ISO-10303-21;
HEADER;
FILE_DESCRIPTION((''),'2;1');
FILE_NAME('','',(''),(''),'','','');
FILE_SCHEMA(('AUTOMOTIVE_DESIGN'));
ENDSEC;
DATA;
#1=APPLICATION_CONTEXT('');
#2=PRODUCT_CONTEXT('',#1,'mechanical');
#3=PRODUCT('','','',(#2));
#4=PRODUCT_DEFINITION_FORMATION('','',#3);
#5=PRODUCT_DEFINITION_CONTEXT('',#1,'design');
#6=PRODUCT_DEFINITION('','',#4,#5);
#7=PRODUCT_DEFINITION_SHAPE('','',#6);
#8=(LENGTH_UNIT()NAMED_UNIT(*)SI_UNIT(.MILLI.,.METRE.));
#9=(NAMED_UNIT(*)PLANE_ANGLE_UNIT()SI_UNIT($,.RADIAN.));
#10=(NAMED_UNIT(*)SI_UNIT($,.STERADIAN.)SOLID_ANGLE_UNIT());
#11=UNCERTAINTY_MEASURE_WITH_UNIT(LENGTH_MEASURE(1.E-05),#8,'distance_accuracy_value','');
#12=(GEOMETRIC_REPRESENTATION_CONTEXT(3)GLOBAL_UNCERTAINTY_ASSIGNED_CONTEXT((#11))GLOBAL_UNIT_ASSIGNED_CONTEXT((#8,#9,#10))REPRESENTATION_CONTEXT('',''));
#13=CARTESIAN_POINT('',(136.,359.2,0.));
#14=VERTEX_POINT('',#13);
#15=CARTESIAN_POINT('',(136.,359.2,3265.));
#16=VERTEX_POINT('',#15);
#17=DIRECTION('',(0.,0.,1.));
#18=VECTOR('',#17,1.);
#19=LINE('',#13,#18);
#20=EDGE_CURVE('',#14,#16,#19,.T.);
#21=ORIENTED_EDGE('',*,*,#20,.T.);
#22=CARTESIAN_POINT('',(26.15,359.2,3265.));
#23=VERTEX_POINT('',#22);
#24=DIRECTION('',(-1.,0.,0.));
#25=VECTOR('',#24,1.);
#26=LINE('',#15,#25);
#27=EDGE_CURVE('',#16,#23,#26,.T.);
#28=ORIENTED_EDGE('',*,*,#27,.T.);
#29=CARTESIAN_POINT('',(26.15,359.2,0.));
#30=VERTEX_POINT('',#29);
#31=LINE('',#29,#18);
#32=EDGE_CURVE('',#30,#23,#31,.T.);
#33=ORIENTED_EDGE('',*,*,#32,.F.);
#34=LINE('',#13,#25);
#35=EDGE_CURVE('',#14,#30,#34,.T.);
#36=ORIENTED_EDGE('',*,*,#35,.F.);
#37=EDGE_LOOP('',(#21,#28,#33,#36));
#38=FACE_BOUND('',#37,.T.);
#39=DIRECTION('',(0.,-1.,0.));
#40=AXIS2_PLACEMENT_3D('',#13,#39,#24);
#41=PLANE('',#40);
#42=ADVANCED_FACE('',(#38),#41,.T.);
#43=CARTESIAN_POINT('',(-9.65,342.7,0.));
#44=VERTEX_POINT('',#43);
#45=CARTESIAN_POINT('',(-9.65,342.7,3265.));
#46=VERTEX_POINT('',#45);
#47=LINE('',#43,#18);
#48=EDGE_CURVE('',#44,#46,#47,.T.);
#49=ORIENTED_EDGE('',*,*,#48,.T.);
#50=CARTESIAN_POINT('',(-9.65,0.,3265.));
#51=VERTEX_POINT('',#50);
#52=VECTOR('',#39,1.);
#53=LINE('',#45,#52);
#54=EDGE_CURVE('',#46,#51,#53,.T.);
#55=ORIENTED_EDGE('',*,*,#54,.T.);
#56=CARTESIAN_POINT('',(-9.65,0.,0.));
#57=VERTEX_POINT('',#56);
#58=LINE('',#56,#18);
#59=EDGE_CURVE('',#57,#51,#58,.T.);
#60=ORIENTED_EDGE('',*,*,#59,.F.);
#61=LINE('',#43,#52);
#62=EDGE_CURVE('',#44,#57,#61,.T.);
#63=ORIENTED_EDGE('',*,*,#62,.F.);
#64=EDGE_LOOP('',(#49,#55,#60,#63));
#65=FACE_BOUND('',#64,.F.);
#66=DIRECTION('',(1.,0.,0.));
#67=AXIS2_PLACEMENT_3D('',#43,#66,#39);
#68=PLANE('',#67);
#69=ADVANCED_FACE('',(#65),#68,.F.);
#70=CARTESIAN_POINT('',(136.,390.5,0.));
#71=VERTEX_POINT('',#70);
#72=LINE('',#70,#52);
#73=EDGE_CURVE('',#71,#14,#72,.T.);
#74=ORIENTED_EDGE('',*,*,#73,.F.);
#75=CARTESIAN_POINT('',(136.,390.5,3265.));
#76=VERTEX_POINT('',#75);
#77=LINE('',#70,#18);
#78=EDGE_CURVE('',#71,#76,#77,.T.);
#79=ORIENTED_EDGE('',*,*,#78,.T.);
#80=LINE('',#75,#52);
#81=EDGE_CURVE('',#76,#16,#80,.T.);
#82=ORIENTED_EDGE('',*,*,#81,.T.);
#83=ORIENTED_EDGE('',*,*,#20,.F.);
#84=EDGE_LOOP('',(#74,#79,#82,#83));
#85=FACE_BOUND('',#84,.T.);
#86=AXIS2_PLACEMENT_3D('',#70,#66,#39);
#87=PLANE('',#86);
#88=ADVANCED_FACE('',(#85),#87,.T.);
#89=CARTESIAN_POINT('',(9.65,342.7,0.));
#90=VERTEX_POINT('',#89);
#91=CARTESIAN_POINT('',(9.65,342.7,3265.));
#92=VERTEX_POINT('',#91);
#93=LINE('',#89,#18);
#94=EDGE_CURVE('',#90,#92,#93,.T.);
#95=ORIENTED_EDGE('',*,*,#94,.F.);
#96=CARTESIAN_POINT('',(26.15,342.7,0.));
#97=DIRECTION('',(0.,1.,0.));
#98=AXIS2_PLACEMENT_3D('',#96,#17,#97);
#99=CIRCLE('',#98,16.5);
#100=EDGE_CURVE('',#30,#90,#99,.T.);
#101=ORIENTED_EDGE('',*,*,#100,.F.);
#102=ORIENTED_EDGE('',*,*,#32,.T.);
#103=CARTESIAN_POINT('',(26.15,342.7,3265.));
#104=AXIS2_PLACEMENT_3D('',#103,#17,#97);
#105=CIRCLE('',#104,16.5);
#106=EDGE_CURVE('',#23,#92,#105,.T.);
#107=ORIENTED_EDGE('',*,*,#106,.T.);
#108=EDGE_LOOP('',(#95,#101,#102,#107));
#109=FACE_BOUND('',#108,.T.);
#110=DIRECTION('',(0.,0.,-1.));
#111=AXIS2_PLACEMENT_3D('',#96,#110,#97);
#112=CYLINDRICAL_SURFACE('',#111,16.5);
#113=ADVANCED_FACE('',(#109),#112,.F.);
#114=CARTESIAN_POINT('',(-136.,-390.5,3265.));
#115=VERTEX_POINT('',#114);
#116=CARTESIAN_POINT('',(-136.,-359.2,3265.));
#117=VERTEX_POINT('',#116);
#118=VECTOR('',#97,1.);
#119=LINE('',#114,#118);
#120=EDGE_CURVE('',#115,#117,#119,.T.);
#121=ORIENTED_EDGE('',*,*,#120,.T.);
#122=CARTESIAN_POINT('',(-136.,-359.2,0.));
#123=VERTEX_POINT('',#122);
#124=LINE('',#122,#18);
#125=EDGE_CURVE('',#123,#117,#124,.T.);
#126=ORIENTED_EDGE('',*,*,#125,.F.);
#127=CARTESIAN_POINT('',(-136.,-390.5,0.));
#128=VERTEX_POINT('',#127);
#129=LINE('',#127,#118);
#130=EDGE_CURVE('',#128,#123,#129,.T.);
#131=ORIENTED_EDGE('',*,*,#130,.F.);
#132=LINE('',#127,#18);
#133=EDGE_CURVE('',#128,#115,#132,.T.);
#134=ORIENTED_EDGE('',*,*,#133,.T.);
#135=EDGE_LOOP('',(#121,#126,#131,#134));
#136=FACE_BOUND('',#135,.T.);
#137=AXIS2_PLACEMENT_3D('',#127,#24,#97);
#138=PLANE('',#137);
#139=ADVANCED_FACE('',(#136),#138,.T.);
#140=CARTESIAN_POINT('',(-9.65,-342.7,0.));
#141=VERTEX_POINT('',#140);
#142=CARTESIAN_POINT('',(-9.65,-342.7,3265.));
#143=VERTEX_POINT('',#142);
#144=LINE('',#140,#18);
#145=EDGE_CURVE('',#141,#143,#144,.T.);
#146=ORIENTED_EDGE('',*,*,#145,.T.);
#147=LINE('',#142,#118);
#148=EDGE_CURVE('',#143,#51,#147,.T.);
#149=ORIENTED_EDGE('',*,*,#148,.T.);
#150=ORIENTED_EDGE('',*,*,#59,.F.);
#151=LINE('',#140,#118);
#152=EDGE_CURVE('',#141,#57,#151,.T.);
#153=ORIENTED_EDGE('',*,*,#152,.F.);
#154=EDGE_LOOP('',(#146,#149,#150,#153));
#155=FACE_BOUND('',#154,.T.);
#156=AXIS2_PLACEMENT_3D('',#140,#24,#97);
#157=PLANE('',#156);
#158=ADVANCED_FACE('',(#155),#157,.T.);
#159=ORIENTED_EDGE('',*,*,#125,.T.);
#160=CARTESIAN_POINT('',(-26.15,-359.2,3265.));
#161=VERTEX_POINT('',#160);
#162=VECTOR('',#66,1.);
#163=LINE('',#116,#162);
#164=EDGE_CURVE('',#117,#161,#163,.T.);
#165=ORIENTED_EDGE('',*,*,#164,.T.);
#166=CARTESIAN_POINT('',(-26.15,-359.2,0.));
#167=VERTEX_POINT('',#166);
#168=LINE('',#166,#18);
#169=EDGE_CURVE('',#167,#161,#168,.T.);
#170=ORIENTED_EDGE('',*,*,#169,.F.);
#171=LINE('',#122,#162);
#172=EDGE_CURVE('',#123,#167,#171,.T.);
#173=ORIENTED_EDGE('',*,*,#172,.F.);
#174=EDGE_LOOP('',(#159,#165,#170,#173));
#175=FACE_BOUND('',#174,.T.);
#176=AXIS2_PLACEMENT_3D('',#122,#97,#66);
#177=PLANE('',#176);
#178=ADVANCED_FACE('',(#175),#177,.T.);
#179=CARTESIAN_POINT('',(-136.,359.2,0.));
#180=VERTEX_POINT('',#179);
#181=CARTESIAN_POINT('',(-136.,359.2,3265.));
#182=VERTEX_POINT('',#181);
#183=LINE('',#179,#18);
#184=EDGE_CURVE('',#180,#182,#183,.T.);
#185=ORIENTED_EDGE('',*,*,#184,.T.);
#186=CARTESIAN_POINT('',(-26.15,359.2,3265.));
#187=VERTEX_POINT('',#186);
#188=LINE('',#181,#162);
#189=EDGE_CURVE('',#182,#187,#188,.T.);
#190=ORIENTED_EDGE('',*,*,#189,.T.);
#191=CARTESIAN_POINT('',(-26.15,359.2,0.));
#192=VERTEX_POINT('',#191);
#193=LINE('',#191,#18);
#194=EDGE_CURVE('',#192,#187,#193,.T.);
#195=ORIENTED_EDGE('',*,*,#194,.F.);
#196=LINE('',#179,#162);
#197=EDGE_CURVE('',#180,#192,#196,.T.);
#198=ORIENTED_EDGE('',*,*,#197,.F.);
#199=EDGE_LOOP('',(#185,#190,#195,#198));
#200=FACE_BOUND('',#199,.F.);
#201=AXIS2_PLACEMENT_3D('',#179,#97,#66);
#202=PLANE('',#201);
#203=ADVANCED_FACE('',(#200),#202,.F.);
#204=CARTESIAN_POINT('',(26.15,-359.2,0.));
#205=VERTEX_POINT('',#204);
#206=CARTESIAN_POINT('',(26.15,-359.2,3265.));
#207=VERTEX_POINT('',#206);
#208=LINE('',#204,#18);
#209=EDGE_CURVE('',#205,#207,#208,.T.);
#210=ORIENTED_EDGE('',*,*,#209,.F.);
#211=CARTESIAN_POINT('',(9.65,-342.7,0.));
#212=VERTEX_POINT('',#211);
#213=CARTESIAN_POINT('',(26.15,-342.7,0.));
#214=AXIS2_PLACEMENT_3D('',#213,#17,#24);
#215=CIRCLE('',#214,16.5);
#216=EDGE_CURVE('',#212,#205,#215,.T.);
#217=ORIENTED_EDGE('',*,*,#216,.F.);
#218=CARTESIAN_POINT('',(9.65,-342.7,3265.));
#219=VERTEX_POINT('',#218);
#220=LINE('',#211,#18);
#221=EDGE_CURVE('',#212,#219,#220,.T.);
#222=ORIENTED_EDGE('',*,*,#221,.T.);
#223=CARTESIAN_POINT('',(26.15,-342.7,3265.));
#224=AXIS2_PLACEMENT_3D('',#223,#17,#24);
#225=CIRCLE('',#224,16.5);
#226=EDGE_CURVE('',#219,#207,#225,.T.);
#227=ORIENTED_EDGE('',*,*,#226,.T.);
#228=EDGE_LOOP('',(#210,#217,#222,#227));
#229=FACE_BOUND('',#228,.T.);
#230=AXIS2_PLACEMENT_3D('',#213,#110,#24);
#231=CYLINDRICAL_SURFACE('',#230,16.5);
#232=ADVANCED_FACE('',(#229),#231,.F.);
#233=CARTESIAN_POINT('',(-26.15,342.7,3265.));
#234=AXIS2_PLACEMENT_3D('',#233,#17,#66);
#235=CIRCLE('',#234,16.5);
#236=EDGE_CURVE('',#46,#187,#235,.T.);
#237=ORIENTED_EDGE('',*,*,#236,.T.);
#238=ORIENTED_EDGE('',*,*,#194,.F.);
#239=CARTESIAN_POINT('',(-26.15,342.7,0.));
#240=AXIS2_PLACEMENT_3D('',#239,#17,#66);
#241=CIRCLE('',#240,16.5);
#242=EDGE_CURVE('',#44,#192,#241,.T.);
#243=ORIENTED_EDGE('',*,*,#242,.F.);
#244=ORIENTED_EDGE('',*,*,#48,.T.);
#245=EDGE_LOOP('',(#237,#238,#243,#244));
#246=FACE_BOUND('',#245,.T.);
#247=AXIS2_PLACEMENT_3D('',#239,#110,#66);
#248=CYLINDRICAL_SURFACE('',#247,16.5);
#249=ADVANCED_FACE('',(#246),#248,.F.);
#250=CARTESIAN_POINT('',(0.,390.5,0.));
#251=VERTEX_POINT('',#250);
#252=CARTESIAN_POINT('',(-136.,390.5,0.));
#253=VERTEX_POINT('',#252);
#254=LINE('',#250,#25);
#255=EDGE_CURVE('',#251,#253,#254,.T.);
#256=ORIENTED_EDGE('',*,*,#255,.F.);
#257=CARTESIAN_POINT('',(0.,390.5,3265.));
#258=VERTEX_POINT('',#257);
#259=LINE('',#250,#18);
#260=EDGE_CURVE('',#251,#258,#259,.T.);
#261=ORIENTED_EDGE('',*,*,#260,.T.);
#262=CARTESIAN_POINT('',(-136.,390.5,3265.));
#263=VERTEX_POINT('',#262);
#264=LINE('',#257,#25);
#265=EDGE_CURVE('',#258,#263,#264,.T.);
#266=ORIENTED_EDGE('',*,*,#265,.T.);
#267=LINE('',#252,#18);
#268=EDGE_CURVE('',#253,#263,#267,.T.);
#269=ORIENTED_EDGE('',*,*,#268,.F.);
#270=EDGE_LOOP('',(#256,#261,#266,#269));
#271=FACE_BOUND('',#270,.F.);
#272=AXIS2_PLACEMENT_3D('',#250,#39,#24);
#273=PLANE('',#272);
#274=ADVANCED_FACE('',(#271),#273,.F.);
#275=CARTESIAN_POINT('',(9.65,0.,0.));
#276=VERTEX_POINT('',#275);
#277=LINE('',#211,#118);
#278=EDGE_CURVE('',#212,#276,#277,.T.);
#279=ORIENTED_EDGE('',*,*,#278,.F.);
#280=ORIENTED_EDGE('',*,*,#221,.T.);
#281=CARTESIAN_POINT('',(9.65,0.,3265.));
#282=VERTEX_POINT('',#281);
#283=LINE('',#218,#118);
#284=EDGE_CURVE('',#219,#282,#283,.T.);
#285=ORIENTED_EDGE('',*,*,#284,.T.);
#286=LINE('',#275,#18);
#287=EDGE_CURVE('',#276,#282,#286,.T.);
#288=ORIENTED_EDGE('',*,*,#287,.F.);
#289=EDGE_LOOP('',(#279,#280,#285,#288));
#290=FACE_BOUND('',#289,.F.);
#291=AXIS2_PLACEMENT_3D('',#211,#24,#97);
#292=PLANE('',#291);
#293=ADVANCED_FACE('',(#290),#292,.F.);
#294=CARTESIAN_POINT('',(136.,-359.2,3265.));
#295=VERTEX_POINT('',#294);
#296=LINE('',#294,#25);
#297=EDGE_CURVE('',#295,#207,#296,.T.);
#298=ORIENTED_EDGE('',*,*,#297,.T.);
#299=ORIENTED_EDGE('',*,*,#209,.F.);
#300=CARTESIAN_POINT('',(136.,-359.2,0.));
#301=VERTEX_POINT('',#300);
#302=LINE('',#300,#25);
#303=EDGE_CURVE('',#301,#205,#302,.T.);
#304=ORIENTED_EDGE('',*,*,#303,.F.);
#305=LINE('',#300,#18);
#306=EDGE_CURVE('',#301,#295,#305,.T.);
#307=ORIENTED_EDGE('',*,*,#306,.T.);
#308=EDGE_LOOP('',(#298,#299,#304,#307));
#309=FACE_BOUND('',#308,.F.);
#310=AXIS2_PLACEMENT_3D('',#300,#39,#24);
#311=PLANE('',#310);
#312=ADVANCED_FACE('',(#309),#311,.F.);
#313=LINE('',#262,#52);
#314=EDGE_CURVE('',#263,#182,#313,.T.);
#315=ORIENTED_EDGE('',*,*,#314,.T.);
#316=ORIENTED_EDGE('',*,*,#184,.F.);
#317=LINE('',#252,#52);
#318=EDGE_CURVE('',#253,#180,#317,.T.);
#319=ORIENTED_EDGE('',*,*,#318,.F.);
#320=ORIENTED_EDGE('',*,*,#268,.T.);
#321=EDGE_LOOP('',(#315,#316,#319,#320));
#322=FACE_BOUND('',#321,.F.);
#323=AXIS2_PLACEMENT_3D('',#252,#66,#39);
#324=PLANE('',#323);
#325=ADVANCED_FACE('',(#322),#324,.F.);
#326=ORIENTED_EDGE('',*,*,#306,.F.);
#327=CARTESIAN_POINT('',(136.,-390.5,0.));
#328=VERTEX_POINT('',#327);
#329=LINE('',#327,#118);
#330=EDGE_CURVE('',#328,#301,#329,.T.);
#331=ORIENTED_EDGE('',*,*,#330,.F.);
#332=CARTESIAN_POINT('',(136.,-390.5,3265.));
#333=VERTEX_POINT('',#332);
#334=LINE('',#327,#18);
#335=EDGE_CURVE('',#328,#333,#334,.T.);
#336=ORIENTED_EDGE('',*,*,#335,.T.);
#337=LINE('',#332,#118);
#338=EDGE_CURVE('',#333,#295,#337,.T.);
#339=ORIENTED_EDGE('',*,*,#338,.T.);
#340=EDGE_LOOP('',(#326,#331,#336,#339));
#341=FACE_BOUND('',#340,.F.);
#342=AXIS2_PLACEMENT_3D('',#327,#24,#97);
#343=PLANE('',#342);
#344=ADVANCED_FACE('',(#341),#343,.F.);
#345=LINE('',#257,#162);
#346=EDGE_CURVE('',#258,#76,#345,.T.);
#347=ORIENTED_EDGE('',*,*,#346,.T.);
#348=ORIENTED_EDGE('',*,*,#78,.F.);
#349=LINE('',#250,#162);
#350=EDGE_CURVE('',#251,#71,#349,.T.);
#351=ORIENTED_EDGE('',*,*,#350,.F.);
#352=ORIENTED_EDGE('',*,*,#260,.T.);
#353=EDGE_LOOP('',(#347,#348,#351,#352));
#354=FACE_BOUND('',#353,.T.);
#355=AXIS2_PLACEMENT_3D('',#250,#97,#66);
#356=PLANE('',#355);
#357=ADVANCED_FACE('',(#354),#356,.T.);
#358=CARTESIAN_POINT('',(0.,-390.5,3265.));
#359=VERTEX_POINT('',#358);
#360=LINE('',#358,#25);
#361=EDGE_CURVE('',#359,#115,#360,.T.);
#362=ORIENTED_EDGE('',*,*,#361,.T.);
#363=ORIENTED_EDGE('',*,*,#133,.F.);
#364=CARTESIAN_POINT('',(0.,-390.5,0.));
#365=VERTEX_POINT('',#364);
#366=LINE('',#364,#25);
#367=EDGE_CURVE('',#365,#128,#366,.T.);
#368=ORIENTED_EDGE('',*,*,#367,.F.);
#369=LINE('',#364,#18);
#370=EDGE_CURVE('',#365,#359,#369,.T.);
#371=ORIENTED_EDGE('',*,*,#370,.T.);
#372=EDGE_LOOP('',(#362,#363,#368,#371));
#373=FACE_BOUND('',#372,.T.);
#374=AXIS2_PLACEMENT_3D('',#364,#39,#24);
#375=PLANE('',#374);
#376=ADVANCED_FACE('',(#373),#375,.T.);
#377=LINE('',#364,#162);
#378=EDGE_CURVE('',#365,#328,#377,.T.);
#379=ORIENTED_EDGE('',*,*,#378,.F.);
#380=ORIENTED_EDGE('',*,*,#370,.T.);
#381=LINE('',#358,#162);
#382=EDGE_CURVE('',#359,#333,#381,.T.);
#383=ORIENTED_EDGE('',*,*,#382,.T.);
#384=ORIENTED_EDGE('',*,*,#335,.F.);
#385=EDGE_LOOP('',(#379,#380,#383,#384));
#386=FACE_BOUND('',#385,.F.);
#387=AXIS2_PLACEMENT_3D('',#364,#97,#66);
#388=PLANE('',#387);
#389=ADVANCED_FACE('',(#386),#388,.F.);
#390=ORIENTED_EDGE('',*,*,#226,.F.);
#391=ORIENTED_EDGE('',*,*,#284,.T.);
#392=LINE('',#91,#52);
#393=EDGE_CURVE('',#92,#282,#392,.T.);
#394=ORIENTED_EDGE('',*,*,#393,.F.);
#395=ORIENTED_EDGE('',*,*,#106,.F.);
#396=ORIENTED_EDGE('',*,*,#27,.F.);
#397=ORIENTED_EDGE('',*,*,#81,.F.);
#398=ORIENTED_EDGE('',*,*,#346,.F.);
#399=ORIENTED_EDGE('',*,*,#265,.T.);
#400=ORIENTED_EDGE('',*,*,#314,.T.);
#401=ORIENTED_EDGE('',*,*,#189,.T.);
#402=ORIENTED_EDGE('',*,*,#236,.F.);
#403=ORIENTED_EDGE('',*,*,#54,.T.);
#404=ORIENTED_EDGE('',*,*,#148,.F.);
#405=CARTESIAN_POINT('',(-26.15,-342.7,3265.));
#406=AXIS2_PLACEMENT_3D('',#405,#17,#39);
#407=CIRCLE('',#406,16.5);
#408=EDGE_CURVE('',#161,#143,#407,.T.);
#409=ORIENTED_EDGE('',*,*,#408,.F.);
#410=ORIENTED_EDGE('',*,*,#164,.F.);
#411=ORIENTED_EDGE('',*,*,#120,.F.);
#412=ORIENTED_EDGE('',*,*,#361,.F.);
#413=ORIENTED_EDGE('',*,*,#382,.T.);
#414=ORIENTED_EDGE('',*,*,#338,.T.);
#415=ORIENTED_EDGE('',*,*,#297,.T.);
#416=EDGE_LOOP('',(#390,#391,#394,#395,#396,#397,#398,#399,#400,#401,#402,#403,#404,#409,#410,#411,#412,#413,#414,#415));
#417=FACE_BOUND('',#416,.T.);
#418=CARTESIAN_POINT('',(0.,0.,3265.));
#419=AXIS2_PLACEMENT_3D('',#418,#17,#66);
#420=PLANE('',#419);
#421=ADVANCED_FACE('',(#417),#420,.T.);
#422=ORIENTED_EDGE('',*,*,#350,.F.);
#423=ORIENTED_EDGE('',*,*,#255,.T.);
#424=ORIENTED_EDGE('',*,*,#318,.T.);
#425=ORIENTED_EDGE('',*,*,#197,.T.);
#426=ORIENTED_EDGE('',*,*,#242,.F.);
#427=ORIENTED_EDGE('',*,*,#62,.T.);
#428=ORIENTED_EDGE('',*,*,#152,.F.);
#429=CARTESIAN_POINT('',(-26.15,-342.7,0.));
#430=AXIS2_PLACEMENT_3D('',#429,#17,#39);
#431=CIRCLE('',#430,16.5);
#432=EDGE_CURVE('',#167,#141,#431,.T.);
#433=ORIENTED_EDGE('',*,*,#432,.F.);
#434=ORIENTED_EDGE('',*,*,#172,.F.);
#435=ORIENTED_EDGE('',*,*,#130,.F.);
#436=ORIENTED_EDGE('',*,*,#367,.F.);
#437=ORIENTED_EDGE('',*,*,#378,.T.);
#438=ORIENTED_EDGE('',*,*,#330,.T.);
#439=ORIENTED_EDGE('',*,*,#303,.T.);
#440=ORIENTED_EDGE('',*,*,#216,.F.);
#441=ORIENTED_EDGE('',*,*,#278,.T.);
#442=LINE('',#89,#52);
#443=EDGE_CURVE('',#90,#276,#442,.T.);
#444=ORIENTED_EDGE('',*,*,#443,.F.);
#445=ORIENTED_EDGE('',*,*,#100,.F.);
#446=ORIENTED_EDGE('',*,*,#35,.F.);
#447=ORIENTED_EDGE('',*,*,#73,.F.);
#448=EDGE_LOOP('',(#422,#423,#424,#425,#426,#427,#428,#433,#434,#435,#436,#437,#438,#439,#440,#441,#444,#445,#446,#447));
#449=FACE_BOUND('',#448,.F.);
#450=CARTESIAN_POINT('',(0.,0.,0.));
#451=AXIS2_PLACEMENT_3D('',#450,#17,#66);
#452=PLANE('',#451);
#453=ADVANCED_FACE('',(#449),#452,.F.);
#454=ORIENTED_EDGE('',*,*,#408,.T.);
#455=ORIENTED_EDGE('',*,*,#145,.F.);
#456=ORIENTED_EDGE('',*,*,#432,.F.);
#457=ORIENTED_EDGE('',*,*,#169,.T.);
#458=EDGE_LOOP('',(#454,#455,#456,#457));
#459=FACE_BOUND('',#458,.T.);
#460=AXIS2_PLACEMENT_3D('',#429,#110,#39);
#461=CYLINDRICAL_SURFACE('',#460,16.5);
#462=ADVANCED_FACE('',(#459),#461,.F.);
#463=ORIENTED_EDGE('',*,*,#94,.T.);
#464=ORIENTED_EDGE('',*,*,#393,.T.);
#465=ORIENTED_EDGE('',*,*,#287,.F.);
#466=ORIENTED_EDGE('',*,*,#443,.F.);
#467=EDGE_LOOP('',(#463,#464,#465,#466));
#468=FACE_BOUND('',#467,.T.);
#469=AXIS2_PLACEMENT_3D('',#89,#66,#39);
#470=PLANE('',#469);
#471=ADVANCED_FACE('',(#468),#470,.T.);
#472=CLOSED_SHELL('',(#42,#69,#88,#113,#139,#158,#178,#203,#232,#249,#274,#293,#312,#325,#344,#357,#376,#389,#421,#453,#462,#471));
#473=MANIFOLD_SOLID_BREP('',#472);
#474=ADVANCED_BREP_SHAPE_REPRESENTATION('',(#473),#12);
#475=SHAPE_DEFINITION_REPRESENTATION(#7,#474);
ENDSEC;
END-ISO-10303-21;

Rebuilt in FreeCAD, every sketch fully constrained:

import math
import FreeCAD as App
import Part
import Sketcher
from FreeCAD import Vector

doc = App.newDocument("Part")
body = doc.addObject("PartDesign::Body", "Body")

# Sketch on XY plane
sketch1 = doc.addObject("Sketcher::SketchObject", "Sketch")
body.addObject(sketch1)
sketch1.AttachmentSupport = (doc.XY_Plane, [""])
sketch1.MapMode = "FlatFace"
sketch1.addGeometry([
    Part.LineSegment(Vector(-136, -359, 0), Vector(-136, -390, 0)),  # 0
    Part.LineSegment(Vector(-136, -390, 0), Vector(136, -390, 0)),  # 1
    Part.LineSegment(Vector(136, -390, 0), Vector(136, -359, 0)),  # 2
    Part.LineSegment(Vector(136, -359, 0), Vector(26, -359, 0)),  # 3
    Part.ArcOfCircle(Part.Circle(Vector(26, -343, 0), Vector(0, 0, 1), 16), math.radians(180), math.radians(270)),  # 4
    Part.LineSegment(Vector(10, -343, 0), Vector(10, 343, 0)),  # 5
    Part.ArcOfCircle(Part.Circle(Vector(26, 343, 0), Vector(0, 0, 1), 16), math.radians(90), math.radians(180)),  # 6
    Part.LineSegment(Vector(26, 359, 0), Vector(136, 359, 0)),  # 7
    Part.LineSegment(Vector(136, 359, 0), Vector(136, 390, 0)),  # 8
    Part.LineSegment(Vector(136, 390, 0), Vector(-136, 390, 0)),  # 9
    Part.LineSegment(Vector(-136, 390, 0), Vector(-136, 359, 0)),  # 10
    Part.LineSegment(Vector(-136, 359, 0), Vector(-26, 359, 0)),  # 11
    Part.ArcOfCircle(Part.Circle(Vector(-26, 343, 0), Vector(0, 0, 1), 16), math.radians(0), math.radians(90)),  # 12
    Part.LineSegment(Vector(-10, 343, 0), Vector(-10, -343, 0)),  # 13
    Part.ArcOfCircle(Part.Circle(Vector(-26, -343, 0), Vector(0, 0, 1), 16), math.radians(-90), math.radians(0)),  # 14
    Part.LineSegment(Vector(-26, -359, 0), Vector(-136, -359, 0)),  # 15
], False)
sketch1.addConstraint([
    Sketcher.Constraint("Coincident", 0, 2, 1, 1),
    Sketcher.Constraint("Coincident", 1, 2, 2, 1),
    Sketcher.Constraint("Coincident", 2, 2, 3, 1),
    Sketcher.Constraint("Tangent", 3, 2, 4, 2),
    Sketcher.Constraint("Tangent", 4, 1, 5, 1),
    Sketcher.Constraint("Tangent", 5, 2, 6, 2),
    Sketcher.Constraint("Tangent", 6, 1, 7, 1),
    Sketcher.Constraint("Coincident", 7, 2, 8, 1),
    Sketcher.Constraint("Coincident", 8, 2, 9, 1),
    Sketcher.Constraint("Coincident", 9, 2, 10, 1),
    Sketcher.Constraint("Coincident", 10, 2, 11, 1),
    Sketcher.Constraint("Tangent", 11, 2, 12, 2),
    Sketcher.Constraint("Tangent", 12, 1, 13, 1),
    Sketcher.Constraint("Tangent", 13, 2, 14, 2),
    Sketcher.Constraint("Tangent", 14, 1, 15, 1),
    Sketcher.Constraint("Coincident", 15, 2, 0, 1),
    Sketcher.Constraint("Vertical", 0),
    Sketcher.Constraint("Horizontal", 1),
    Sketcher.Constraint("Vertical", 2),
    Sketcher.Constraint("Horizontal", 3),
    Sketcher.Constraint("Vertical", 5),
    Sketcher.Constraint("Horizontal", 7),
    Sketcher.Constraint("Vertical", 8),
    Sketcher.Constraint("Horizontal", 9),
    Sketcher.Constraint("Vertical", 10),
    Sketcher.Constraint("Horizontal", 11),
    Sketcher.Constraint("Vertical", 13),
    Sketcher.Constraint("Horizontal", 15),
    Sketcher.Constraint("Equal", 4, 6),
    Sketcher.Constraint("Equal", 6, 12),
    Sketcher.Constraint("Equal", 12, 14),
    Sketcher.Constraint("Symmetric", 4, 3, 12, 3, -1, 1),
    Sketcher.Constraint("Symmetric", 0, 2, 8, 2, -1, 1),
    Sketcher.Constraint("Symmetric", 7, 2, 10, 2, -2),
    Sketcher.Constraint("Symmetric", 2, 2, 15, 2, -2),
    Sketcher.Constraint("Radius", 4, 16.5),
    Sketcher.Constraint("DistanceY", 0, 2, 0, 1, 31.3),
    Sketcher.Constraint("DistanceX", 0, 2, -1, 1, 136.0),
    Sketcher.Constraint("DistanceY", 0, 2, -1, 1, 390.5),
    Sketcher.Constraint("DistanceX", -1, 1, 4, 1, 9.65),
])
pad1 = doc.addObject("PartDesign::Pad", "Pad")
body.addObject(pad1)
pad1.Profile = sketch1
pad1.Length = 3265

doc.recompute()
